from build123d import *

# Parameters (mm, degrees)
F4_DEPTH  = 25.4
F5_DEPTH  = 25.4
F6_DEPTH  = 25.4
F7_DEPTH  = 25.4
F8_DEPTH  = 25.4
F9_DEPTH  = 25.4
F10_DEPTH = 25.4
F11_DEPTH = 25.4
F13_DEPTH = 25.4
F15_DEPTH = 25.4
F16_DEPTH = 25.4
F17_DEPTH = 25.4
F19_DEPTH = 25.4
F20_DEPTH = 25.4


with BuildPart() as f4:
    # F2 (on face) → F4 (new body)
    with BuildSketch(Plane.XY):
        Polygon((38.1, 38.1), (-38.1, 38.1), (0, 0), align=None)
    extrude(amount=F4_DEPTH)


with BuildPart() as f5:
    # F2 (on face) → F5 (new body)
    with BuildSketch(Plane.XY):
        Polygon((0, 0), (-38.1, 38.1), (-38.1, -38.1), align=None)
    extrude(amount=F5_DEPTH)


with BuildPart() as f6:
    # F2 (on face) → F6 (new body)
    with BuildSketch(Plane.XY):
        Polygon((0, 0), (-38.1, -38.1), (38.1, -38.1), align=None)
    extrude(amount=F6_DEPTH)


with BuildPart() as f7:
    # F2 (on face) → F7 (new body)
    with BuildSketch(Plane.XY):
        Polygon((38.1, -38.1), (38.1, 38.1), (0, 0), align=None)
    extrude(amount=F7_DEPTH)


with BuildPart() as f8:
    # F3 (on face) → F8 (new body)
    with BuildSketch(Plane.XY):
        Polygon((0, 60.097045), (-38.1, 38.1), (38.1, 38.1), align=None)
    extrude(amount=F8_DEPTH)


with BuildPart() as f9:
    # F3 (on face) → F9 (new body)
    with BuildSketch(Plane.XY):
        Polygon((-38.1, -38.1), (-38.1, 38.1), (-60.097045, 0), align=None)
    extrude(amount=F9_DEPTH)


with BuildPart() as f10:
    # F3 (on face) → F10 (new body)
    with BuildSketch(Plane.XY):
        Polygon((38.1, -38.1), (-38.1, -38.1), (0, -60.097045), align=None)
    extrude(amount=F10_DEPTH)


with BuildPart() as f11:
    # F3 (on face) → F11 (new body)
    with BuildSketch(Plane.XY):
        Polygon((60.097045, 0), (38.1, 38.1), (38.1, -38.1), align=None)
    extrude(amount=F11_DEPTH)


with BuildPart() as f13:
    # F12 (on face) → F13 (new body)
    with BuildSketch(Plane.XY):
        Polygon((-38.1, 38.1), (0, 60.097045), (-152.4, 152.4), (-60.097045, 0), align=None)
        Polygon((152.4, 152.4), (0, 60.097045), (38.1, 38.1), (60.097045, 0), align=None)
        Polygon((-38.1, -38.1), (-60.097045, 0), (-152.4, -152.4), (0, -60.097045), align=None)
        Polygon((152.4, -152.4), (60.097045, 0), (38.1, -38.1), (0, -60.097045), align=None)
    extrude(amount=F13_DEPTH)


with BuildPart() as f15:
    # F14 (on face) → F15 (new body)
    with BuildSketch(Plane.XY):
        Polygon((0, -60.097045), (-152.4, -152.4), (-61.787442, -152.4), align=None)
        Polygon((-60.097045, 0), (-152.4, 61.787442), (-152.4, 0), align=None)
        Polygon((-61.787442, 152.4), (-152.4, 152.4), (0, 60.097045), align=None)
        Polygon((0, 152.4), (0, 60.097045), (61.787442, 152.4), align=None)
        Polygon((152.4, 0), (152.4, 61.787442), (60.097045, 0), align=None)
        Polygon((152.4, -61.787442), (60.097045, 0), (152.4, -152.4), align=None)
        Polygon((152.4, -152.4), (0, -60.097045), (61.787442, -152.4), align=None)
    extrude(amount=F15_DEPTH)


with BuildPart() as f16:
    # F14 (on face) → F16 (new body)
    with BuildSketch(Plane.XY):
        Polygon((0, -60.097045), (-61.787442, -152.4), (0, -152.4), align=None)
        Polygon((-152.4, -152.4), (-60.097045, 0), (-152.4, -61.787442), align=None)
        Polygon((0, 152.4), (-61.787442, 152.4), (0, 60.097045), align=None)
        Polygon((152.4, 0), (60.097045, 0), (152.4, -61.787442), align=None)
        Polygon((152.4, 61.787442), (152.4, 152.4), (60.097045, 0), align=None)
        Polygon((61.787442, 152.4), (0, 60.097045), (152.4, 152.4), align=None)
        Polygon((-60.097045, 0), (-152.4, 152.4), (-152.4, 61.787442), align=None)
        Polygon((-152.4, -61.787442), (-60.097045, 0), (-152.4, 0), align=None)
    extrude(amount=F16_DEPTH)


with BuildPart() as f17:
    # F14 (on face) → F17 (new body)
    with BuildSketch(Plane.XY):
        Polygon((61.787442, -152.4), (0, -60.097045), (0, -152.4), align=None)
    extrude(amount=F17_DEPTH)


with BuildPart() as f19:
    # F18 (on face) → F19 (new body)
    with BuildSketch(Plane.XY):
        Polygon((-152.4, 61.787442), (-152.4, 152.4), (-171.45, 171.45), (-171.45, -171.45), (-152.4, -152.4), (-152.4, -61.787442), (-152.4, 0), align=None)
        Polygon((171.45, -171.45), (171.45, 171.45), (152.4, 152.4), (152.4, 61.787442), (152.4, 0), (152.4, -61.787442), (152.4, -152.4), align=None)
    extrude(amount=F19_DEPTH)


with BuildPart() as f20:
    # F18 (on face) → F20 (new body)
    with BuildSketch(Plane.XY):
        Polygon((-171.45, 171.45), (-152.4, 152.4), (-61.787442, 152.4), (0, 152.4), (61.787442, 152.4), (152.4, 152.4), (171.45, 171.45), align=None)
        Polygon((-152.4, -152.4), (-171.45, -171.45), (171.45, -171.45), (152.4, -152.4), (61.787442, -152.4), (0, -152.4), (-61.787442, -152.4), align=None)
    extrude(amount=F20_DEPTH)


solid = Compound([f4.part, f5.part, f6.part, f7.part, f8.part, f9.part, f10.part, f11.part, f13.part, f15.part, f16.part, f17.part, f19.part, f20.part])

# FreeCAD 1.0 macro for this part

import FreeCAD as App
import Part
import Sketcher

V = App.Vector
Q = App.Units.Quantity

doc = App.newDocument("Part")
body = doc.addObject("PartDesign::Body", "Body")

# Sketch on XY plane
sketch1 = body.newObject("Sketcher::SketchObject", "Sketch")
sketch1.AttachmentSupport = (doc.getObject("XY_Plane"), [""])
sketch1.MapMode = "FlatFace"
sketch1.addGeometry([
    Part.LineSegment(V(38.1, 38.1, 0), V(-38.1, 38.1, 0)),
    Part.LineSegment(V(-38.1, 38.1, 0), V(0, 0, 0)),
    Part.LineSegment(V(0, 0, 0), V(38.1, 38.1, 0)),
], False)
sketch1.addConstraint([
    Sketcher.Constraint("Coincident", 0, 2, 1, 1),
    Sketcher.Constraint("Coincident", 1, 2, 2, 1),
    Sketcher.Constraint("Coincident", 2, 2, 0, 1),
    Sketcher.Constraint("Horizontal", 0),
    Sketcher.Constraint("Coincident", 1, 2, -1, 1),
    Sketcher.Constraint("Perpendicular", 1, 2),
    Sketcher.Constraint("Equal", 1, 2),
    Sketcher.Constraint("DistanceX", 0, 2, 0, 1, Q("3 in")),
])
pad1 = body.newObject("PartDesign::Pad", "Pad")
pad1.Profile = sketch1
pad1.Length = Q("1 in")
body2 = doc.addObject("PartDesign::Body", "Body001")

# Sketch on XY plane
sketch2 = body2.newObject("Sketcher::SketchObject", "Sketch001")
sketch2.AttachmentSupport = (doc.getObject("XY_Plane001"), [""])
sketch2.MapMode = "FlatFace"
sketch2.addGeometry([
    Part.LineSegment(V(0, 0, 0), V(-38.1, 38.1, 0)),
    Part.LineSegment(V(-38.1, 38.1, 0), V(-38.1, -38.1, 0)),
    Part.LineSegment(V(-38.1, -38.1, 0), V(0, 0, 0)),
], False)
sketch2.addConstraint([
    Sketcher.Constraint("Coincident", 0, 2, 1, 1),
    Sketcher.Constraint("Coincident", 1, 2, 2, 1),
    Sketcher.Constraint("Coincident", 2, 2, 0, 1),
    Sketcher.Constraint("Vertical", 1),
    Sketcher.Constraint("Coincident", 2, 2, -1, 1),
    Sketcher.Constraint("Perpendicular", 0, 2),
    Sketcher.Constraint("Equal", 0, 2),
    Sketcher.Constraint("DistanceY", 1, 2, 1, 1, Q("3 in")),
])
pad2 = body2.newObject("PartDesign::Pad", "Pad001")
pad2.Profile = sketch2
pad2.Length = Q("1 in")
body3 = doc.addObject("PartDesign::Body", "Body002")

# Sketch on XY plane
sketch3 = body3.newObject("Sketcher::SketchObject", "Sketch002")
sketch3.AttachmentSupport = (doc.getObject("XY_Plane002"), [""])
sketch3.MapMode = "FlatFace"
sketch3.addGeometry([
    Part.LineSegment(V(0, 0, 0), V(-38.1, -38.1, 0)),
    Part.LineSegment(V(-38.1, -38.1, 0), V(38.1, -38.1, 0)),
    Part.LineSegment(V(38.1, -38.1, 0), V(0, 0, 0)),
], False)
sketch3.addConstraint([
    Sketcher.Constraint("Coincident", 0, 2, 1, 1),
    Sketcher.Constraint("Coincident", 1, 2, 2, 1),
    Sketcher.Constraint("Coincident", 2, 2, 0, 1),
    Sketcher.Constraint("Horizontal", 1),
    Sketcher.Constraint("Coincident", 2, 2, -1, 1),
    Sketcher.Constraint("Perpendicular", 0, 2),
    Sketcher.Constraint("Equal", 0, 2),
    Sketcher.Constraint("DistanceX", 1, 1, 1, 2, Q("3 in")),
])
pad3 = body3.newObject("PartDesign::Pad", "Pad002")
pad3.Profile = sketch3
pad3.Length = Q("1 in")
body4 = doc.addObject("PartDesign::Body", "Body003")

# Sketch on XY plane
sketch4 = body4.newObject("Sketcher::SketchObject", "Sketch003")
sketch4.AttachmentSupport = (doc.getObject("XY_Plane003"), [""])
sketch4.MapMode = "FlatFace"
sketch4.addGeometry([
    Part.LineSegment(V(38.1, -38.1, 0), V(38.1, 38.1, 0)),
    Part.LineSegment(V(38.1, 38.1, 0), V(0, 0, 0)),
    Part.LineSegment(V(0, 0, 0), V(38.1, -38.1, 0)),
], False)
sketch4.addConstraint([
    Sketcher.Constraint("Coincident", 0, 2, 1, 1),
    Sketcher.Constraint("Coincident", 1, 2, 2, 1),
    Sketcher.Constraint("Coincident", 2, 2, 0, 1),
    Sketcher.Constraint("Vertical", 0),
    Sketcher.Constraint("Coincident", 1, 2, -1, 1),
    Sketcher.Constraint("Perpendicular", 1, 2),
    Sketcher.Constraint("Equal", 1, 2),
    Sketcher.Constraint("DistanceY", 0, 1, 0, 2, Q("3 in")),
])
pad4 = body4.newObject("PartDesign::Pad", "Pad003")
pad4.Profile = sketch4
pad4.Length = Q("1 in")
body5 = doc.addObject("PartDesign::Body", "Body004")

# Sketch on XY plane
sketch5 = body5.newObject("Sketcher::SketchObject", "Sketch004")
sketch5.AttachmentSupport = (doc.getObject("XY_Plane004"), [""])
sketch5.MapMode = "FlatFace"
sketch5.addGeometry([
    Part.LineSegment(V(0, 60.097045, 0), V(-38.1, 38.1, 0)),
    Part.LineSegment(V(-38.1, 38.1, 0), V(38.1, 38.1, 0)),
    Part.LineSegment(V(38.1, 38.1, 0), V(0, 60.097045, 0)),
], False)
sketch5.addConstraint([
    Sketcher.Constraint("Coincident", 0, 2, 1, 1),
    Sketcher.Constraint("Coincident", 1, 2, 2, 1),
    Sketcher.Constraint("Coincident", 2, 2, 0, 1),
    Sketcher.Constraint("Horizontal", 1),
    Sketcher.Constraint("PointOnObject", 2, 2, -2),
    Sketcher.Constraint("Equal", 0, 2),
    Sketcher.Constraint("DistanceX", 1, 1, 1, 2, Q("3 in")),
    Sketcher.Constraint("Angle", 0, Q("-150 deg")),
    Sketcher.Constraint("DistanceY", -1, 1, 0, 2, Q("1.5 in")),
])
pad5 = body5.newObject("PartDesign::Pad", "Pad004")
pad5.Profile = sketch5
pad5.Length = Q("1 in")
body6 = doc.addObject("PartDesign::Body", "Body005")

# Sketch on XY plane
sketch6 = body6.newObject("Sketcher::SketchObject", "Sketch005")
sketch6.AttachmentSupport = (doc.getObject("XY_Plane005"), [""])
sketch6.MapMode = "FlatFace"
sketch6.addGeometry([
    Part.LineSegment(V(-38.1, -38.1, 0), V(-38.1, 38.1, 0)),
    Part.LineSegment(V(-38.1, 38.1, 0), V(-60.097045, 0, 0)),
    Part.LineSegment(V(-60.097045, 0, 0), V(-38.1, -38.1, 0)),
], False)
sketch6.addConstraint([
    Sketcher.Constraint("Coincident", 0, 2, 1, 1),
    Sketcher.Constraint("Coincident", 1, 2, 2, 1),
    Sketcher.Constraint("Coincident", 2, 2, 0, 1),
    Sketcher.Constraint("Vertical", 0),
    Sketcher.Constraint("PointOnObject", 1, 2, -1),
    Sketcher.Constraint("Equal", 1, 2),
    Sketcher.Constraint("DistanceY", 0, 1, 0, 2, Q("3 in")),
    Sketcher.Constraint("Angle", 1, Q("-120 deg")),
    Sketcher.Constraint("DistanceX", 0, 2, -1, 1, Q("1.5 in")),
])
pad6 = body6.newObject("PartDesign::Pad", "Pad005")
pad6.Profile = sketch6
pad6.Length = Q("1 in")
body7 = doc.addObject("PartDesign::Body", "Body006")

# Sketch on XY plane
sketch7 = body7.newObject("Sketcher::SketchObject", "Sketch006")
sketch7.AttachmentSupport = (doc.getObject("XY_Plane006"), [""])
sketch7.MapMode = "FlatFace"
sketch7.addGeometry([
    Part.LineSegment(V(38.1, -38.1, 0), V(-38.1, -38.1, 0)),
    Part.LineSegment(V(-38.1, -38.1, 0), V(0, -60.097045, 0)),
    Part.LineSegment(V(0, -60.097045, 0), V(38.1, -38.1, 0)),
], False)
sketch7.addConstraint([
    Sketcher.Constraint("Coincident", 0, 2, 1, 1),
    Sketcher.Constraint("Coincident", 1, 2, 2, 1),
    Sketcher.Constraint("Coincident", 2, 2, 0, 1),
    Sketcher.Constraint("Horizontal", 0),
    Sketcher.Constraint("PointOnObject", 1, 2, -2),
    Sketcher.Constraint("Equal", 1, 2),
    Sketcher.Constraint("DistanceX", 0, 2, 0, 1, Q("3 in")),
    Sketcher.Constraint("Angle", 1, Q("-30 deg")),
    Sketcher.Constraint("DistanceY", 0, 2, -1, 1, Q("1.5 in")),
])
pad7 = body7.newObject("PartDesign::Pad", "Pad006")
pad7.Profile = sketch7
pad7.Length = Q("1 in")
body8 = doc.addObject("PartDesign::Body", "Body007")

# Sketch on XY plane
sketch8 = body8.newObject("Sketcher::SketchObject", "Sketch007")
sketch8.AttachmentSupport = (doc.getObject("XY_Plane007"), [""])
sketch8.MapMode = "FlatFace"
sketch8.addGeometry([
    Part.LineSegment(V(60.097045, 0, 0), V(38.1, 38.1, 0)),
    Part.LineSegment(V(38.1, 38.1, 0), V(38.1, -38.1, 0)),
    Part.LineSegment(V(38.1, -38.1, 0), V(60.097045, 0, 0)),
], False)
sketch8.addConstraint([
    Sketcher.Constraint("Coincident", 0, 2, 1, 1),
    Sketcher.Constraint("Coincident", 1, 2, 2, 1),
    Sketcher.Constraint("Coincident", 2, 2, 0, 1),
    Sketcher.Constraint("Vertical", 1),
    Sketcher.Constraint("PointOnObject", 2, 2, -1),
    Sketcher.Constraint("Equal", 0, 2),
    Sketcher.Constraint("DistanceY", 1, 2, 1, 1, Q("3 in")),
    Sketcher.Constraint("Angle", 0, Q("120 deg")),
    Sketcher.Constraint("DistanceX", -1, 1, 0, 2, Q("1.5 in")),
])
pad8 = body8.newObject("PartDesign::Pad", "Pad007")
pad8.Profile = sketch8
pad8.Length = Q("1 in")
body9 = doc.addObject("PartDesign::Body", "Body008")
body9.AllowCompound = True

# Sketch on XY plane
sketch9 = body9.newObject("Sketcher::SketchObject", "Sketch008")
sketch9.AttachmentSupport = (doc.getObject("XY_Plane008"), [""])
sketch9.MapMode = "FlatFace"
sketch9.addGeometry([
    Part.LineSegment(V(-38.1, 38.1, 0), V(0, 60.097045, 0)),  # 0
    Part.LineSegment(V(0, 60.097045, 0), V(-152.4, 152.4, 0)),  # 1
    Part.LineSegment(V(-152.4, 152.4, 0), V(-60.097045, 0, 0)),  # 2
    Part.LineSegment(V(-60.097045, 0, 0), V(-38.1, 38.1, 0)),  # 3
    Part.LineSegment(V(152.4, 152.4, 0), V(0, 60.097045, 0)),  # 4
    Part.LineSegment(V(0, 60.097045, 0), V(38.1, 38.1, 0)),  # 5
    Part.LineSegment(V(38.1, 38.1, 0), V(60.097045, 0, 0)),  # 6
    Part.LineSegment(V(60.097045, 0, 0), V(152.4, 152.4, 0)),  # 7
    Part.LineSegment(V(-38.1, -38.1, 0), V(-60.097045, 0, 0)),  # 8
    Part.LineSegment(V(-60.097045, 0, 0), V(-152.4, -152.4, 0)),  # 9
    Part.LineSegment(V(-152.4, -152.4, 0), V(0, -60.097045, 0)),  # 10
    Part.LineSegment(V(0, -60.097045, 0), V(-38.1, -38.1, 0)),  # 11
    Part.LineSegment(V(152.4, -152.4, 0), V(60.097045, 0, 0)),  # 12
    Part.LineSegment(V(60.097045, 0, 0), V(38.1, -38.1, 0)),  # 13
    Part.LineSegment(V(38.1, -38.1, 0), V(0, -60.097045, 0)),  # 14
    Part.LineSegment(V(0, -60.097045, 0), V(152.4, -152.4, 0)),  # 15
], False)
sketch9.addConstraint([
    Sketcher.Constraint("Coincident", 0, 2, 1, 1),
    Sketcher.Constraint("Coincident", 1, 2, 2, 1),
    Sketcher.Constraint("Coincident", 2, 2, 3, 1),
    Sketcher.Constraint("Coincident", 3, 2, 0, 1),
    Sketcher.Constraint("Coincident", 4, 2, 5, 1),
    Sketcher.Constraint("Coincident", 5, 2, 6, 1),
    Sketcher.Constraint("Coincident", 6, 2, 7, 1),
    Sketcher.Constraint("Coincident", 7, 2, 4, 1),
    Sketcher.Constraint("Coincident", 8, 2, 9, 1),
    Sketcher.Constraint("Coincident", 9, 2, 10, 1),
    Sketcher.Constraint("Coincident", 10, 2, 11, 1),
    Sketcher.Constraint("Coincident", 11, 2, 8, 1),
    Sketcher.Constraint("Coincident", 12, 2, 13, 1),
    Sketcher.Constraint("Coincident", 13, 2, 14, 1),
    Sketcher.Constraint("Coincident", 14, 2, 15, 1),
    Sketcher.Constraint("Coincident", 15, 2, 12, 1),
    Sketcher.Constraint("Coincident", 4, 2, 0, 2),
    Sketcher.Constraint("Coincident", 8, 2, 2, 2),
    Sketcher.Constraint("Coincident", 12, 2, 6, 2),
    Sketcher.Constraint("Coincident", 14, 2, 10, 2),
    Sketcher.Constraint("Symmetric", 2, 2, 6, 2, -1, 1),
    Sketcher.Constraint("Symmetric", 7, 2, 9, 2, -1, 1),
    Sketcher.Constraint("Symmetric", 0, 2, 10, 2, -1, 1),
    Sketcher.Constraint("Symmetric", 5, 2, 11, 2, -1, 1),
    Sketcher.Constraint("Symmetric", 3, 2, 13, 2, -1, 1),
    Sketcher.Constraint("Symmetric", 1, 2, 15, 2, -1, 1),
    Sketcher.Constraint("Symmetric", 3, 2, 5, 2, -2),
    Sketcher.Constraint("Symmetric", 1, 2, 7, 2, -2),
    Sketcher.Constraint("PointOnObject", 0, 2, -2),
    Sketcher.Constraint("PointOnObject", 2, 2, -1),
    Sketcher.Constraint("Perpendicular", 2, 4),
    Sketcher.Constraint("Perpendicular", 3, 5),
    Sketcher.Constraint("Equal", 1, 2),
    Sketcher.Constraint("DistanceX", 1, 2, -1, 1, Q("6 in")),
    Sketcher.Constraint("Angle", 0, Q("30 deg")),
    Sketcher.Constraint("DistanceX", 3, 2, 5, 2, Q("3 in")),
])
pad9 = body9.newObject("PartDesign::Pad", "Pad008")
pad9.Profile = sketch9
pad9.Length = Q("1 in")
body10 = doc.addObject("PartDesign::Body", "Body009")
body10.AllowCompound = True

# Sketch on XY plane
sketch10 = body10.newObject("Sketcher::SketchObject", "Sketch009")
sketch10.AttachmentSupport = (doc.getObject("XY_Plane009"), [""])
sketch10.MapMode = "FlatFace"
sketch10.addGeometry([
    Part.LineSegment(V(0, -60.097045, 0), V(-152.4, -152.4, 0)),  # 0
    Part.LineSegment(V(-152.4, -152.4, 0), V(-61.787442, -152.4, 0)),  # 1
    Part.LineSegment(V(-61.787442, -152.4, 0), V(0, -60.097045, 0)),  # 2
    Part.LineSegment(V(-60.097045, 0, 0), V(-152.4, 61.787442, 0)),  # 3
    Part.LineSegment(V(-152.4, 61.787442, 0), V(-152.4, 0, 0)),  # 4
    Part.LineSegment(V(-152.4, 0, 0), V(-60.097045, 0, 0)),  # 5
    Part.LineSegment(V(-61.787442, 152.4, 0), V(-152.4, 152.4, 0)),  # 6
    Part.LineSegment(V(-152.4, 152.4, 0), V(0, 60.097045, 0)),  # 7
    Part.LineSegment(V(0, 60.097045, 0), V(-61.787442, 152.4, 0)),  # 8
    Part.LineSegment(V(0, 152.4, 0), V(0, 60.097045, 0)),  # 9
    Part.LineSegment(V(0, 60.097045, 0), V(61.787442, 152.4, 0)),  # 10
    Part.LineSegment(V(61.787442, 152.4, 0), V(0, 152.4, 0)),  # 11
    Part.LineSegment(V(152.4, 0, 0), V(152.4, 61.787442, 0)),  # 12
    Part.LineSegment(V(152.4, 61.787442, 0), V(60.097045, 0, 0)),  # 13
    Part.LineSegment(V(60.097045, 0, 0), V(152.4, 0, 0)),  # 14
    Part.LineSegment(V(152.4, -61.787442, 0), V(60.097045, 0, 0)),  # 15
    Part.LineSegment(V(60.097045, 0, 0), V(152.4, -152.4, 0)),  # 16
    Part.LineSegment(V(152.4, -152.4, 0), V(152.4, -61.787442, 0)),  # 17
    Part.LineSegment(V(152.4, -152.4, 0), V(0, -60.097045, 0)),  # 18
    Part.LineSegment(V(0, -60.097045, 0), V(61.787442, -152.4, 0)),  # 19
    Part.LineSegment(V(61.787442, -152.4, 0), V(152.4, -152.4, 0)),  # 20
], False)
sketch10.addConstraint([
    Sketcher.Constraint("Coincident", 0, 2, 1, 1),
    Sketcher.Constraint("Coincident", 1, 2, 2, 1),
    Sketcher.Constraint("Coincident", 2, 2, 0, 1),
    Sketcher.Constraint("Coincident", 3, 2, 4, 1),
    Sketcher.Constraint("Coincident", 4, 2, 5, 1),
    Sketcher.Constraint("Coincident", 5, 2, 3, 1),
    Sketcher.Constraint("Coincident", 6, 2, 7, 1),
    Sketcher.Constraint("Coincident", 7, 2, 8, 1),
    Sketcher.Constraint("Coincident", 8, 2, 6, 1),
    Sketcher.Constraint("Coincident", 9, 2, 10, 1),
    Sketcher.Constraint("Coincident", 10, 2, 11, 1),
    Sketcher.Constraint("Coincident", 11, 2, 9, 1),
    Sketcher.Constraint("Coincident", 12, 2, 13, 1),
    Sketcher.Constraint("Coincident", 13, 2, 14, 1),
    Sketcher.Constraint("Coincident", 14, 2, 12, 1),
    Sketcher.Constraint("Coincident", 15, 2, 16, 1),
    Sketcher.Constraint("Coincident", 16, 2, 17, 1),
    Sketcher.Constraint("Coincident", 17, 2, 15, 1),
    Sketcher.Constraint("Coincident", 18, 2, 19, 1),
    Sketcher.Constraint("Coincident", 19, 2, 20, 1),
    Sketcher.Constraint("Coincident", 20, 2, 18, 1),
    Sketcher.Constraint("Horizontal", 1),
    Sketcher.Constraint("Vertical", 4),
    Sketcher.Constraint("Horizontal", 5),
    Sketcher.Constraint("Horizontal", 6),
    Sketcher.Constraint("Vertical", 9),
    Sketcher.Constraint("Horizontal", 11),
    Sketcher.Constraint("Vertical", 12),
    Sketcher.Constraint("Horizontal", 14),
    Sketcher.Constraint("Vertical", 17),
    Sketcher.Constraint("Horizontal", 20),
    Sketcher.Constraint("Coincident", 9, 2, 7, 2),
    Sketcher.Constraint("Coincident", 15, 2, 13, 2),
    Sketcher.Constraint("Coincident", 18, 2, 2, 2),
    Sketcher.Constraint("Coincident", 20, 2, 16, 2),
    Sketcher.Constraint("Symmetric", 2, 2, 7, 2, -1, 1),
    Sketcher.Constraint("Symmetric", 1, 2, 10, 2, -1, 1),
    Sketcher.Constraint("Symmetric", 5, 2, 13, 2, -1, 1),
    Sketcher.Constraint("Symmetric", 6, 2, 16, 2, -1, 1),
    Sketcher.Constraint("Symmetric", 3, 2, 17, 2, -1, 1),
    Sketcher.Constraint("Symmetric", 8, 2, 10, 2, -2),
    Sketcher.Constraint("Symmetric", 3, 2, 12, 2, -2),
    Sketcher.Constraint("PointOnObject", 2, 2, -2),
    Sketcher.Constraint("PointOnObject", 4, 2, -1),
    Sketcher.Constraint("Perpendicular", 2, 3),
    Sketcher.Constraint("Perpendicular", 0, 16),
    Sketcher.Constraint("Perpendicular", 13, 19),
    Sketcher.Constraint("Vertical", 0, 2, 3, 2),
    Sketcher.Constraint("Equal", 11, 4),
    Sketcher.Constraint("DistanceX", 0, 2, -1, 1, Q("6 in")),
    Sketcher.Constraint("DistanceX", 1, 1, 1, 2, Q("90.612558 mm")),
    Sketcher.Constraint("DistanceX", 5, 1, 5, 2, Q("92.302955 mm")),
])
pad10 = body10.newObject("PartDesign::Pad", "Pad009")
pad10.Profile = sketch10
pad10.Length = Q("1 in")
body11 = doc.addObject("PartDesign::Body", "Body010")
body11.AllowCompound = True

# Sketch on XY plane
sketch11 = body11.newObject("Sketcher::SketchObject", "Sketch010")
sketch11.AttachmentSupport = (doc.getObject("XY_Plane010"), [""])
sketch11.MapMode = "FlatFace"
sketch11.addGeometry([
    Part.LineSegment(V(0, -60.097045, 0), V(-61.787442, -152.4, 0)),  # 0
    Part.LineSegment(V(-61.787442, -152.4, 0), V(0, -152.4, 0)),  # 1
    Part.LineSegment(V(0, -152.4, 0), V(0, -60.097045, 0)),  # 2
    Part.LineSegment(V(-152.4, -152.4, 0), V(-60.097045, 0, 0)),  # 3
    Part.LineSegment(V(-60.097045, 0, 0), V(-152.4, 0, 0)),  # 4
    Part.LineSegment(V(-152.4, 0, 0), V(-152.4, -152.4, 0)),  # 5
    Part.LineSegment(V(0, 152.4, 0), V(-61.787442, 152.4, 0)),  # 6
    Part.LineSegment(V(-61.787442, 152.4, 0), V(0, 60.097045, 0)),  # 7
    Part.LineSegment(V(0, 60.097045, 0), V(0, 152.4, 0)),  # 8
    Part.LineSegment(V(152.4, 0, 0), V(60.097045, 0, 0)),  # 9
    Part.LineSegment(V(60.097045, 0, 0), V(152.4, -61.787442, 0)),  # 10
    Part.LineSegment(V(152.4, -61.787442, 0), V(152.4, 0, 0)),  # 11
    Part.LineSegment(V(152.4, 61.787442, 0), V(152.4, 152.4, 0)),  # 12
    Part.LineSegment(V(152.4, 152.4, 0), V(60.097045, 0, 0)),  # 13
    Part.LineSegment(V(60.097045, 0, 0), V(152.4, 61.787442, 0)),  # 14
    Part.LineSegment(V(61.787442, 152.4, 0), V(0, 60.097045, 0)),  # 15
    Part.LineSegment(V(0, 60.097045, 0), V(152.4, 152.4, 0)),  # 16
    Part.LineSegment(V(152.4, 152.4, 0), V(61.787442, 152.4, 0)),  # 17
    Part.LineSegment(V(-60.097045, 0, 0), V(-152.4, 152.4, 0)),  # 18
    Part.LineSegment(V(-152.4, 152.4, 0), V(-152.4, 61.787442, 0)),  # 19
    Part.LineSegment(V(-152.4, 61.787442, 0), V(-60.097045, 0, 0)),  # 20
], False)
sketch11.addConstraint([
    Sketcher.Constraint("Coincident", 0, 2, 1, 1),
    Sketcher.Constraint("Coincident", 1, 2, 2, 1),
    Sketcher.Constraint("Coincident", 2, 2, 0, 1),
    Sketcher.Constraint("Coincident", 3, 2, 4, 1),
    Sketcher.Constraint("Coincident", 4, 2, 5, 1),
    Sketcher.Constraint("Coincident", 5, 2, 3, 1),
    Sketcher.Constraint("Coincident", 6, 2, 7, 1),
    Sketcher.Constraint("Coincident", 7, 2, 8, 1),
    Sketcher.Constraint("Coincident", 8, 2, 6, 1),
    Sketcher.Constraint("Coincident", 9, 2, 10, 1),
    Sketcher.Constraint("Coincident", 10, 2, 11, 1),
    Sketcher.Constraint("Coincident", 11, 2, 9, 1),
    Sketcher.Constraint("Coincident", 12, 2, 13, 1),
    Sketcher.Constraint("Coincident", 13, 2, 14, 1),
    Sketcher.Constraint("Coincident", 14, 2, 12, 1),
    Sketcher.Constraint("Coincident", 15, 2, 16, 1),
    Sketcher.Constraint("Coincident", 16, 2, 17, 1),
    Sketcher.Constraint("Coincident", 17, 2, 15, 1),
    Sketcher.Constraint("Coincident", 18, 2, 19, 1),
    Sketcher.Constraint("Coincident", 19, 2, 20, 1),
    Sketcher.Constraint("Coincident", 20, 2, 18, 1),
    Sketcher.Constraint("Horizontal", 1),
    Sketcher.Constraint("Vertical", 2),
    Sketcher.Constraint("Horizontal", 4),
    Sketcher.Constraint("Vertical", 5),
    Sketcher.Constraint("Horizontal", 6),
    Sketcher.Constraint("Vertical", 8),
    Sketcher.Constraint("Horizontal", 9),
    Sketcher.Constraint("Vertical", 11),
    Sketcher.Constraint("Vertical", 12),
    Sketcher.Constraint("Horizontal", 17),
    Sketcher.Constraint("Vertical", 19),
    Sketcher.Constraint("Coincident", 13, 2, 9, 2),
    Sketcher.Constraint("Coincident", 15, 2, 7, 2),
    Sketcher.Constraint("Coincident", 16, 2, 12, 2),
    Sketcher.Constraint("Coincident", 20, 2, 3, 2),
    Sketcher.Constraint("Symmetric", 2, 2, 7, 2, -1, 1),
    Sketcher.Constraint("Symmetric", 3, 2, 9, 2, -1, 1),
    Sketcher.Constraint("Symmetric", 5, 2, 12, 2, -1, 1),
    Sketcher.Constraint("Symmetric", 0, 2, 17, 2, -1, 1),
    Sketcher.Constraint("Symmetric", 10, 2, 19, 2, -1, 1),
    Sketcher.Constraint("Symmetric", 4, 2, 11, 2, -2),
    Sketcher.Constraint("Symmetric", 6, 2, 17, 2, -2),
    Sketcher.Constraint("PointOnObject", 1, 2, -2),
    Sketcher.Constraint("Perpendicular", 0, 10),
    Sketcher.Constraint("Perpendicular", 7, 14),
    Sketcher.Constraint("Perpendicular", 16, 18),
    Sketcher.Constraint("Horizontal", 17, 2, 18, 2),
    Sketcher.Constraint("Equal", 9, 2),
    Sketcher.Constraint("DistanceY", 5, 2, 5, 1, Q("6 in")),
    Sketcher.Constraint("DistanceX", 17, 2, 17, 1, Q("90.612558 mm")),
    Sketcher.Constraint("DistanceX", 4, 2, 4, 1, Q("92.302955 mm")),
])
pad11 = body11.newObject("PartDesign::Pad", "Pad010")
pad11.Profile = sketch11
pad11.Length = Q("1 in")
body12 = doc.addObject("PartDesign::Body", "Body011")

# Sketch on XY plane
sketch12 = body12.newObject("Sketcher::SketchObject", "Sketch011")
sketch12.AttachmentSupport = (doc.getObject("XY_Plane011"), [""])
sketch12.MapMode = "FlatFace"
sketch12.addGeometry([
    Part.LineSegment(V(61.787442, -152.4, 0), V(0, -60.097045, 0)),
    Part.LineSegment(V(0, -60.097045, 0), V(0, -152.4, 0)),
    Part.LineSegment(V(0, -152.4, 0), V(61.787442, -152.4, 0)),
], False)
sketch12.addConstraint([
    Sketcher.Constraint("Coincident", 0, 2, 1, 1),
    Sketcher.Constraint("Coincident", 1, 2, 2, 1),
    Sketcher.Constraint("Coincident", 2, 2, 0, 1),
    Sketcher.Constraint("Vertical", 1),
    Sketcher.Constraint("Horizontal", 2),
    Sketcher.Constraint("PointOnObject", 0, 2, -2),
    Sketcher.Constraint("DistanceY", 1, 2, -1, 1, Q("6 in")),
    Sketcher.Constraint("DistanceX", 2, 1, 2, 2, Q("61.787442 mm")),
    Sketcher.Constraint("DistanceY", 1, 2, 1, 1, Q("92.302955 mm")),
])
pad12 = body12.newObject("PartDesign::Pad", "Pad011")
pad12.Profile = sketch12
pad12.Length = Q("1 in")
body13 = doc.addObject("PartDesign::Body", "Body012")
body13.AllowCompound = True

# Sketch on XY plane
sketch13 = body13.newObject("Sketcher::SketchObject", "Sketch012")
sketch13.AttachmentSupport = (doc.getObject("XY_Plane012"), [""])
sketch13.MapMode = "FlatFace"
sketch13.addGeometry([
    Part.LineSegment(V(-152.4, 152.4, 0), V(-171.45, 171.45, 0)),  # 0
    Part.LineSegment(V(-171.45, 171.45, 0), V(-171.45, -171.45, 0)),  # 1
    Part.LineSegment(V(-171.45, -171.45, 0), V(-152.4, -152.4, 0)),  # 2
    Part.LineSegment(V(-152.4, -152.4, 0), V(-152.4, 152.4, 0)),  # 3
    Part.LineSegment(V(171.45, -171.45, 0), V(171.45, 171.45, 0)),  # 4
    Part.LineSegment(V(171.45, 171.45, 0), V(152.4, 152.4, 0)),  # 5
    Part.LineSegment(V(152.4, 152.4, 0), V(152.4, -152.4, 0)),  # 6
    Part.LineSegment(V(152.4, -152.4, 0), V(171.45, -171.45, 0)),  # 7
], False)
sketch13.addConstraint([
    Sketcher.Constraint("Coincident", 0, 2, 1, 1),
    Sketcher.Constraint("Coincident", 1, 2, 2, 1),
    Sketcher.Constraint("Coincident", 2, 2, 3, 1),
    Sketcher.Constraint("Coincident", 3, 2, 0, 1),
    Sketcher.Constraint("Coincident", 4, 2, 5, 1),
    Sketcher.Constraint("Coincident", 5, 2, 6, 1),
    Sketcher.Constraint("Coincident", 6, 2, 7, 1),
    Sketcher.Constraint("Coincident", 7, 2, 4, 1),
    Sketcher.Constraint("Vertical", 1),
    Sketcher.Constraint("Vertical", 3),
    Sketcher.Constraint("Vertical", 4),
    Sketcher.Constraint("Vertical", 6),
    Sketcher.Constraint("Symmetric", 1, 2, 4, 2, -1, 1),
    Sketcher.Constraint("Symmetric", 2, 2, 5, 2, -1, 1),
    Sketcher.Constraint("Perpendicular", 0, 2),
    Sketcher.Constraint("Perpendicular", 5, 7),
    Sketcher.Constraint("Horizontal", 0, 2, 4, 2),
    Sketcher.Constraint("Horizontal", 3, 2, 5, 2),
    Sketcher.Constraint("Horizontal", 2, 2, 6, 2),
    Sketcher.Constraint("DistanceY", 3, 1, 3, 2, Q("12 in")),
    Sketcher.Constraint("DistanceY", 1, 2, 1, 1, Q("13.5 in")),
    Sketcher.Constraint("DistanceX", 2, 2, -1, 1, Q("6 in")),
])
pad13 = body13.newObject("PartDesign::Pad", "Pad012")
pad13.Profile = sketch13
pad13.Length = Q("1 in")
body14 = doc.addObject("PartDesign::Body", "Body013")
body14.AllowCompound = True

# Sketch on XY plane
sketch14 = body14.newObject("Sketcher::SketchObject", "Sketch013")
sketch14.AttachmentSupport = (doc.getObject("XY_Plane013"), [""])
sketch14.MapMode = "FlatFace"
sketch14.addGeometry([
    Part.LineSegment(V(-171.45, 171.45, 0), V(-152.4, 152.4, 0)),  # 0
    Part.LineSegment(V(-152.4, 152.4, 0), V(152.4, 152.4, 0)),  # 1
    Part.LineSegment(V(152.4, 152.4, 0), V(171.45, 171.45, 0)),  # 2
    Part.LineSegment(V(171.45, 171.45, 0), V(-171.45, 171.45, 0)),  # 3
    Part.LineSegment(V(-152.4, -152.4, 0), V(-171.45, -171.45, 0)),  # 4
    Part.LineSegment(V(-171.45, -171.45, 0), V(171.45, -171.45, 0)),  # 5
    Part.LineSegment(V(171.45, -171.45, 0), V(152.4, -152.4, 0)),  # 6
    Part.LineSegment(V(152.4, -152.4, 0), V(-152.4, -152.4, 0)),  # 7
], False)
sketch14.addConstraint([
    Sketcher.Constraint("Coincident", 0, 2, 1, 1),
    Sketcher.Constraint("Coincident", 1, 2, 2, 1),
    Sketcher.Constraint("Coincident", 2, 2, 3, 1),
    Sketcher.Constraint("Coincident", 3, 2, 0, 1),
    Sketcher.Constraint("Coincident", 4, 2, 5, 1),
    Sketcher.Constraint("Coincident", 5, 2, 6, 1),
    Sketcher.Constraint("Coincident", 6, 2, 7, 1),
    Sketcher.Constraint("Coincident", 7, 2, 4, 1),
    Sketcher.Constraint("Horizontal", 1),
    Sketcher.Constraint("Horizontal", 3),
    Sketcher.Constraint("Horizontal", 5),
    Sketcher.Constraint("Horizontal", 7),
    Sketcher.Constraint("Symmetric", 2, 2, 4, 2, -1, 1),
    Sketcher.Constraint("Symmetric", 0, 2, 6, 2, -1, 1),
    Sketcher.Constraint("Perpendicular", 0, 2),
    Sketcher.Constraint("Parallel", 2, 4),
    Sketcher.Constraint("Perpendicular", 4, 6),
    Sketcher.Constraint("Vertical", 3, 2, 4, 2),
    Sketcher.Constraint("Vertical", 1, 2, 6, 2),
    Sketcher.Constraint("DistanceX", 1, 1, 1, 2, Q("12 in")),
    Sketcher.Constraint("DistanceX", 3, 2, 3, 1, Q("13.5 in")),
    Sketcher.Constraint("DistanceY", -1, 1, 0, 2, Q("6 in")),
])
pad14 = body14.newObject("PartDesign::Pad", "Pad013")
pad14.Profile = sketch14
pad14.Length = Q("1 in")

doc.recompute()
